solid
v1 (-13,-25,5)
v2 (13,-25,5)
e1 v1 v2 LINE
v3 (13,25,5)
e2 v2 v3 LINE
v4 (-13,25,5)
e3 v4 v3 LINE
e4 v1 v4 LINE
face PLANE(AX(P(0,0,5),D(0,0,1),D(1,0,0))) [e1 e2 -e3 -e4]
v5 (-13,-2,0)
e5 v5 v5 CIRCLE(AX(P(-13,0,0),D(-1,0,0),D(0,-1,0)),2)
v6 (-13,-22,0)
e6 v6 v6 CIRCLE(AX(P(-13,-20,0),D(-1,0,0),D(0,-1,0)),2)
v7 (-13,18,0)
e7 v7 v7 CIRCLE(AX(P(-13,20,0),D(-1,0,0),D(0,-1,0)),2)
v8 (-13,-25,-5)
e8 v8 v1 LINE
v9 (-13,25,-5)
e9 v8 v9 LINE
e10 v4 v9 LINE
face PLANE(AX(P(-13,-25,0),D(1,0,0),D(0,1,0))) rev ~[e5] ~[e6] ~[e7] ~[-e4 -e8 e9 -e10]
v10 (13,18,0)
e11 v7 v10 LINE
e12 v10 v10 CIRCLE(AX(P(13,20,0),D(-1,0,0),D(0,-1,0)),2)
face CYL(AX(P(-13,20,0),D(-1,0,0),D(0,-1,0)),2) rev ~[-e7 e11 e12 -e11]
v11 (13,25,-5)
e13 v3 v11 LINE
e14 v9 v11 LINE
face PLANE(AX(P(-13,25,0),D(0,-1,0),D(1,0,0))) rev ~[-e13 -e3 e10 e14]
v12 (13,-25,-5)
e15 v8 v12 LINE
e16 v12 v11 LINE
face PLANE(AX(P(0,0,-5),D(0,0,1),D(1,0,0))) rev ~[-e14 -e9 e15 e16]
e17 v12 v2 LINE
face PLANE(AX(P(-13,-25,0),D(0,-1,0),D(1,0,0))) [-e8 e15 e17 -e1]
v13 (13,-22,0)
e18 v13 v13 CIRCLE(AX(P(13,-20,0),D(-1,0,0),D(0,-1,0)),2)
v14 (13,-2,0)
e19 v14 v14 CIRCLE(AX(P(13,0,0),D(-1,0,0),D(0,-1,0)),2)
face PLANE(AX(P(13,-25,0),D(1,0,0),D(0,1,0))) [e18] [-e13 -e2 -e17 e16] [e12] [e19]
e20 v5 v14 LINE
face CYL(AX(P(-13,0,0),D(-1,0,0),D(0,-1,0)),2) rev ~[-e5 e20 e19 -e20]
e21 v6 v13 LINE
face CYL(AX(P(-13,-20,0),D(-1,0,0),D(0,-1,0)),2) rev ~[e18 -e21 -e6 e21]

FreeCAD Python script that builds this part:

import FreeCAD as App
import Part
import Sketcher
from FreeCAD import Vector
Q = App.Units.Quantity


def add_polygon(sketch, points):
    """Adds a closed chain of lines whose ends are joined by coincident constraints."""
    first, n = sketch.GeometryCount, len(points)
    for a, b in zip(points, points[1:] + points[:1]):
        sketch.addGeometry(Part.LineSegment(App.Vector(*a, 0), App.Vector(*b, 0)), False)
    for i in range(n):
        sketch.addConstraint(Sketcher.Constraint("Coincident", first + i, 2, first + (i + 1) % n, 1))

doc = App.newDocument("Part")
body = doc.addObject("PartDesign::Body", "Body")

# Sketch on XY plane
sketch1 = body.newObject("Sketcher::SketchObject", "Sketch")
sketch1.AttachmentSupport = (doc.getObject("XY_Plane"), [""])
sketch1.MapMode = "FlatFace"
add_polygon(sketch1, [(-13, 25), (-13, -25), (13, -25), (13, 25)])  # lines 0-3
sketch1.addConstraint(Sketcher.Constraint("Vertical", 0))
sketch1.addConstraint(Sketcher.Constraint("Horizontal", 1))
sketch1.addConstraint(Sketcher.Constraint("Vertical", 2))
sketch1.addConstraint(Sketcher.Constraint("Horizontal", 3))
sketch1.addConstraint(Sketcher.Constraint("Symmetric", 0, 2, 2, 2, -1, 1))
sketch1.addConstraint(Sketcher.Constraint("DistanceX", 1, 1, 1, 2, Q("26 mm")))
sketch1.addConstraint(Sketcher.Constraint("DistanceY", 0, 2, 0, 1, Q("50 mm")))
pad1 = body.newObject("PartDesign::Pad", "Pad")
pad1.Profile = sketch1
pad1.Type = "TwoLengths"
pad1.Length = 5
pad1.Length2 = 5

# Sketch on YZ plane
sketch2 = body.newObject("Sketcher::SketchObject", "Sketch001")
sketch2.AttachmentSupport = (doc.getObject("YZ_Plane"), [""])
sketch2.MapMode = "FlatFace"
sketch2.AttachmentOffset = App.Placement(Vector(0, 0, -13), App.Rotation())
sketch2.addGeometry(Part.Circle(Vector(0, 0, 0), Vector(0, 0, 1), 2), False)
sketch2.addGeometry(Part.Circle(Vector(-20, 0, 0), Vector(0, 0, 1), 2), False)
sketch2.addGeometry(Part.Circle(Vector(20, 0, 0), Vector(0, 0, 1), 2), False)
sketch2.addConstraint(Sketcher.Constraint("Coincident", 0, 3, -1, 1))
sketch2.addConstraint(Sketcher.Constraint("Equal", 0, 1))
sketch2.addConstraint(Sketcher.Constraint("Equal", 1, 2))
sketch2.addConstraint(Sketcher.Constraint("Symmetric", 1, 3, 2, 3, -1, 1))
sketch2.addConstraint(Sketcher.Constraint("PointOnObject", 1, 3, -1))
sketch2.addConstraint(Sketcher.Constraint("Diameter", 0, Q("4 mm")))
sketch2.addConstraint(Sketcher.Constraint("DistanceX", 1, 3, -1, 1, Q("20 mm")))
pocket1 = body.newObject("PartDesign::Pocket", "Pocket")
pocket1.Profile = sketch2
pocket1.Type = "ThroughAll"
pocket1.Reversed = True

# Sketch on YZ plane
sketch3 = body.newObject("Sketcher::SketchObject", "Sketch002")
sketch3.AttachmentSupport = (doc.getObject("YZ_Plane"), [""])
sketch3.MapMode = "FlatFace"
sketch3.AttachmentOffset = App.Placement(Vector(0, 0, -13), App.Rotation())
sketch3.addGeometry(Part.Circle(Vector(0, 0, 0), Vector(0, 0, 1), 2), False)
sketch3.addGeometry(Part.Circle(Vector(-20, 0, 0), Vector(0, 0, 1), 2), False)
sketch3.addGeometry(Part.Circle(Vector(20, 0, 0), Vector(0, 0, 1), 2), False)
sketch3.addConstraint(Sketcher.Constraint("Coincident", 0, 3, -1, 1))
sketch3.addConstraint(Sketcher.Constraint("Equal", 0, 1))
sketch3.addConstraint(Sketcher.Constraint("Equal", 1, 2))
sketch3.addConstraint(Sketcher.Constraint("Symmetric", 1, 3, 2, 3, -1, 1))
sketch3.addConstraint(Sketcher.Constraint("PointOnObject", 1, 3, -1))
sketch3.addConstraint(Sketcher.Constraint("Diameter", 0, Q("4 mm")))
sketch3.addConstraint(Sketcher.Constraint("DistanceX", 1, 3, -1, 1, Q("20 mm")))
pocket2 = body.newObject("PartDesign::Pocket", "Pocket001")
pocket2.Profile = sketch3
pocket2.Type = "ThroughAll"
pocket2.Reversed = True

doc.recompute()
